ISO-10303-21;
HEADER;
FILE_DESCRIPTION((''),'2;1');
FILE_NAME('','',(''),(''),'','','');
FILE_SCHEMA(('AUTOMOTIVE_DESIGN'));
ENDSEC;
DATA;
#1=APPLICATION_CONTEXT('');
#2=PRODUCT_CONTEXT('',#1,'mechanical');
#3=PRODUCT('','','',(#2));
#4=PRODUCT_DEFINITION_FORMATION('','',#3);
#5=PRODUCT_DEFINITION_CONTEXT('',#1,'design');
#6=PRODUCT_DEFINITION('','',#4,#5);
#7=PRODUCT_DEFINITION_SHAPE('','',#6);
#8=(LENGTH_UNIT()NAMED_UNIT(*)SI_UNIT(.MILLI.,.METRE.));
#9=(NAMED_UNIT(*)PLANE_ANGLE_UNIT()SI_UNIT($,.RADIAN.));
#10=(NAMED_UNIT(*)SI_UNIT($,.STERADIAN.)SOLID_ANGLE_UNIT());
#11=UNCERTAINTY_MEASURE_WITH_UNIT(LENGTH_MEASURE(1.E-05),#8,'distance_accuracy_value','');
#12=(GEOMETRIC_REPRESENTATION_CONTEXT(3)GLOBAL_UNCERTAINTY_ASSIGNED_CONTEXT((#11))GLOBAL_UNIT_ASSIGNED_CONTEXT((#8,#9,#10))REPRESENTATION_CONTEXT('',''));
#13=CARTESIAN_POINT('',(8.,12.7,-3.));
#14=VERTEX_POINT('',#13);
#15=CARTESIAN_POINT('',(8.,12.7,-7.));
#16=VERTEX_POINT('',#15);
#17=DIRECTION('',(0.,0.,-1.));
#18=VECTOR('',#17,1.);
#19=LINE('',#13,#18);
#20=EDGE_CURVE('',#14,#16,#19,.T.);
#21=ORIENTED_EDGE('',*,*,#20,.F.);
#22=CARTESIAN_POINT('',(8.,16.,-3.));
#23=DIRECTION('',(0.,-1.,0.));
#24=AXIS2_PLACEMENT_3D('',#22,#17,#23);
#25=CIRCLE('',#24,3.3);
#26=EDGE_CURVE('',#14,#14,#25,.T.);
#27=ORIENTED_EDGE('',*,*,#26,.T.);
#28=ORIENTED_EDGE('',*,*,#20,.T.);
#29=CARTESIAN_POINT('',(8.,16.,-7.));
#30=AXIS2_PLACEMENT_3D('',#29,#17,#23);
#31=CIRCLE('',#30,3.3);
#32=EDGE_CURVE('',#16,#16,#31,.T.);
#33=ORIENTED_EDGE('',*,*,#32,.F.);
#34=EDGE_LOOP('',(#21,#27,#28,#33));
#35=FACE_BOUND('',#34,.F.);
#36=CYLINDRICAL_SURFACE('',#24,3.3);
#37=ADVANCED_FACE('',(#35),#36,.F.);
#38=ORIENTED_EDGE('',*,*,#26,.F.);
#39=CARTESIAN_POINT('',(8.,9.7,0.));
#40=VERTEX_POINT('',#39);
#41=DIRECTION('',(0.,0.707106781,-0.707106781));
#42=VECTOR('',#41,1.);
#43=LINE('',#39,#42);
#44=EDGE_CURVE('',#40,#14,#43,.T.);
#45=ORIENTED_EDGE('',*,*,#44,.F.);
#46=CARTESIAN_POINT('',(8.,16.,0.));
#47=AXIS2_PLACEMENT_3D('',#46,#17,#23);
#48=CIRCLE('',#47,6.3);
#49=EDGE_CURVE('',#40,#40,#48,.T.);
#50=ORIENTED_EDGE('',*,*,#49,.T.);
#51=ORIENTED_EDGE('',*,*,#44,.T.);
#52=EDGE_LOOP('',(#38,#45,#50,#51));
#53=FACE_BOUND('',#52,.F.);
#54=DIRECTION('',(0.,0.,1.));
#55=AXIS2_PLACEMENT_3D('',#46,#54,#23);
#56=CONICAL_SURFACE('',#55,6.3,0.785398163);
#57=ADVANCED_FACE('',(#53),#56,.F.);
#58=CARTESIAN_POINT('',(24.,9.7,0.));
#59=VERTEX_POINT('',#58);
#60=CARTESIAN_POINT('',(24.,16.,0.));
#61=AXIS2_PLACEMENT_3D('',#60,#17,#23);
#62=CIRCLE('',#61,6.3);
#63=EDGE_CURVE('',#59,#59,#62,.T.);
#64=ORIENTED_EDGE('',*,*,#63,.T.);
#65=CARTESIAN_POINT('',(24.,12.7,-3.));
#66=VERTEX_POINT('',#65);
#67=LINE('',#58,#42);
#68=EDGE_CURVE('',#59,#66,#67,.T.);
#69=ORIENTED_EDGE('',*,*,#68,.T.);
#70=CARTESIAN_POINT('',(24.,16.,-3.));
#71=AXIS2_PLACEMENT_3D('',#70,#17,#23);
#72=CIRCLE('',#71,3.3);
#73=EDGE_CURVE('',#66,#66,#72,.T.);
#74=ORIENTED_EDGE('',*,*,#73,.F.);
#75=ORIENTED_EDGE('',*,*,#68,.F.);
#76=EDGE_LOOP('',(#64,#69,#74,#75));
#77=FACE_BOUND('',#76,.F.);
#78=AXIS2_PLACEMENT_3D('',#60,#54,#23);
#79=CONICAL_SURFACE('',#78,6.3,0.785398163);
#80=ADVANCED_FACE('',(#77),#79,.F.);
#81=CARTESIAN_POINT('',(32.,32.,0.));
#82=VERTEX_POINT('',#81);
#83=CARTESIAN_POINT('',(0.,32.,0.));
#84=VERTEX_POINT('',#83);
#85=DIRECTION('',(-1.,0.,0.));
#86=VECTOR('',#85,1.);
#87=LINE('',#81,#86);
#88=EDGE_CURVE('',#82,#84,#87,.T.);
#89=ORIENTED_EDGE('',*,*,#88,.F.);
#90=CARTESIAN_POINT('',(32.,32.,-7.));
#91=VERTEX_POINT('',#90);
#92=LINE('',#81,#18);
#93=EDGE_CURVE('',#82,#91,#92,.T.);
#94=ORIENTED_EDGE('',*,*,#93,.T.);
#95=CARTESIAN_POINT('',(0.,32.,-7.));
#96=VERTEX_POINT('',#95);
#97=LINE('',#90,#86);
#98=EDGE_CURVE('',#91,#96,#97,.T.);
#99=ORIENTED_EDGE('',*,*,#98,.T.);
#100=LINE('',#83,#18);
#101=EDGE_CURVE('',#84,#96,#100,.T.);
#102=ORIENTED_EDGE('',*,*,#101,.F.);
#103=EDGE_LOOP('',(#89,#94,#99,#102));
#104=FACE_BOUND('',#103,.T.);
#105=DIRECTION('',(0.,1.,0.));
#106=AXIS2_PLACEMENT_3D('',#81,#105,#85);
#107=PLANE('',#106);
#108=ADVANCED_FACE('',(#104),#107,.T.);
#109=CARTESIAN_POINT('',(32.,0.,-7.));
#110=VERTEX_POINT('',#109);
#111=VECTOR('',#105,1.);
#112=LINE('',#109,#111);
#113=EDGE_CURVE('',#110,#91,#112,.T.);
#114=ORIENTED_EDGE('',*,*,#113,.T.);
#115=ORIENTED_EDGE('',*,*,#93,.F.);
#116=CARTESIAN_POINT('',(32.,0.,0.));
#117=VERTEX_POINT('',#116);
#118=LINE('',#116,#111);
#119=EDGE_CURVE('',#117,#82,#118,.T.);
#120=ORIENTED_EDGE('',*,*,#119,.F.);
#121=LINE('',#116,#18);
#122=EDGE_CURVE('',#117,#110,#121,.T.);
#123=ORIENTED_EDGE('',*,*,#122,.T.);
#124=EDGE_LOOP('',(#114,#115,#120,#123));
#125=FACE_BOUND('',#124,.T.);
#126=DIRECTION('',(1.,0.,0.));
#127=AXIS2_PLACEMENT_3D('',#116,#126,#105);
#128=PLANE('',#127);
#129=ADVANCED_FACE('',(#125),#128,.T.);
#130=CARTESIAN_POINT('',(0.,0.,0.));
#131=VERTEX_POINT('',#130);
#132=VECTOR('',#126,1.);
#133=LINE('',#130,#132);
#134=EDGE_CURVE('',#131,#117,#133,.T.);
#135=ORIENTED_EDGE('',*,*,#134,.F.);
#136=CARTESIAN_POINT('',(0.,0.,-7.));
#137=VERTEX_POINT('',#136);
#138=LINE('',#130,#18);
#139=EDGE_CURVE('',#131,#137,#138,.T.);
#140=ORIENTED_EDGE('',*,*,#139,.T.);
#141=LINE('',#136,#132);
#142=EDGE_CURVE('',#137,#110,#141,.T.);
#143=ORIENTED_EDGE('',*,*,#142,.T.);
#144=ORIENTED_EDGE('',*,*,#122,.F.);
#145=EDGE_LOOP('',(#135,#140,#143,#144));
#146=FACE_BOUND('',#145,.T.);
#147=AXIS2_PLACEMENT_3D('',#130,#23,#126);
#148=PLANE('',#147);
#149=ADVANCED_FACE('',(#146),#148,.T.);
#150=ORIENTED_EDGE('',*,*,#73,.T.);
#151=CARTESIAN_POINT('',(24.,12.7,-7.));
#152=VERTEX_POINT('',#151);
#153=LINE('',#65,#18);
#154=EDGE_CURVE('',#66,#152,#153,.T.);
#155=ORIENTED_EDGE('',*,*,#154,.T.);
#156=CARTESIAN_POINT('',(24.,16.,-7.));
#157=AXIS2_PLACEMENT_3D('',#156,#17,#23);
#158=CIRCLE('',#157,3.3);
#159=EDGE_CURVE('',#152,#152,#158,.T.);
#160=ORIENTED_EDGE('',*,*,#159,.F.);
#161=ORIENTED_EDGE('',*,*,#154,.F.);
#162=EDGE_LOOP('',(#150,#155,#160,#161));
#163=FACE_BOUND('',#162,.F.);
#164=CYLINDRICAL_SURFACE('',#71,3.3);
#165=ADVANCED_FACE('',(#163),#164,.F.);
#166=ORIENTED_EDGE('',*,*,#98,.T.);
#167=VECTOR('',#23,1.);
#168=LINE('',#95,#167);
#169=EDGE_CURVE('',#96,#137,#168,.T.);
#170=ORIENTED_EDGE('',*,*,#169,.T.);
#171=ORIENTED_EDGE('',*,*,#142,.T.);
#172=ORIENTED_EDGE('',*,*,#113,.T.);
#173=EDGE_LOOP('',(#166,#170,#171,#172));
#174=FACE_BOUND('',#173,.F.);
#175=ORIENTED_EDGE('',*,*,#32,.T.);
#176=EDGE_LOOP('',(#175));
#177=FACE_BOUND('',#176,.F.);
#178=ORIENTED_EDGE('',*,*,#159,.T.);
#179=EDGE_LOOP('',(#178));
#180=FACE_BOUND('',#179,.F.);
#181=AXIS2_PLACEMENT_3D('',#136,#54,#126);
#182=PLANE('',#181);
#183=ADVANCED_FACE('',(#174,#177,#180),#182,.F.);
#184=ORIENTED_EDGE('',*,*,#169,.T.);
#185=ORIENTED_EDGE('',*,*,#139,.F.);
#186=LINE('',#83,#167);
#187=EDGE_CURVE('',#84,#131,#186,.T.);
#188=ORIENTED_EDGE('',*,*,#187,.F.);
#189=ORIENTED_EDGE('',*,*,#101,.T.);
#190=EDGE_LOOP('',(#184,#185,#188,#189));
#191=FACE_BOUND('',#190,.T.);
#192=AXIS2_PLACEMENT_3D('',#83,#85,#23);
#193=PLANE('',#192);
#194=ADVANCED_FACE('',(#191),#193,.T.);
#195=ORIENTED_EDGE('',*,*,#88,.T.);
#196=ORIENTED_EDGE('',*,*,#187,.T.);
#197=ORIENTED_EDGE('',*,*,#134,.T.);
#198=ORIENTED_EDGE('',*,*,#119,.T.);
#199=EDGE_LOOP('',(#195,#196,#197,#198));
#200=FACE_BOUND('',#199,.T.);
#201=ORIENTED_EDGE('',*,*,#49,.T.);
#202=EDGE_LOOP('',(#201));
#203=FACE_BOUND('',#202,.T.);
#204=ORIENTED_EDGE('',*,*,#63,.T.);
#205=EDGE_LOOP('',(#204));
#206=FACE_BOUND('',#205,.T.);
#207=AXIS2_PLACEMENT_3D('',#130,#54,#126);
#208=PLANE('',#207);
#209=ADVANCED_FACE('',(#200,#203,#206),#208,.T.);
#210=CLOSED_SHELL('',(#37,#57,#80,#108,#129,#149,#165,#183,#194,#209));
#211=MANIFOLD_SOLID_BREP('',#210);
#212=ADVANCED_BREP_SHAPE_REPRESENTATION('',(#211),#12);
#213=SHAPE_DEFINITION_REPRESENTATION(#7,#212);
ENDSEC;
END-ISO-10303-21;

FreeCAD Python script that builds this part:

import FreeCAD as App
import Part
import Sketcher
from FreeCAD import Vector

doc = App.newDocument("Part")
body = doc.addObject("PartDesign::Body", "Body")

# Sketch on XY plane
sketch1 = body.newObject("Sketcher::SketchObject", "Sketch")
sketch1.AttachmentSupport = (doc.getObject("XY_Plane"), [""])
sketch1.MapMode = "FlatFace"
sketch1.addGeometry(Part.LineSegment(Vector(0, 32, 0), Vector(0, 0, 0)), False)
sketch1.addGeometry(Part.LineSegment(Vector(0, 0, 0), Vector(32, 0, 0)), False)
sketch1.addGeometry(Part.LineSegment(Vector(32, 0, 0), Vector(32, 32, 0)), False)
sketch1.addGeometry(Part.LineSegment(Vector(32, 32, 0), Vector(0, 32, 0)), False)
sketch1.addConstraint(Sketcher.Constraint("Coincident", 0, 2, 1, 1))
sketch1.addConstraint(Sketcher.Constraint("Coincident", 1, 2, 2, 1))
sketch1.addConstraint(Sketcher.Constraint("Coincident", 2, 2, 3, 1))
sketch1.addConstraint(Sketcher.Constraint("Coincident", 3, 2, 0, 1))
sketch1.addConstraint(Sketcher.Constraint("Vertical", 0))
sketch1.addConstraint(Sketcher.Constraint("Horizontal", 1))
sketch1.addConstraint(Sketcher.Constraint("Vertical", 2))
sketch1.addConstraint(Sketcher.Constraint("Horizontal", 3))
sketch1.addConstraint(Sketcher.Constraint("Coincident", 0, 2, -1, 1))
sketch1.addConstraint(Sketcher.Constraint("Equal", 3, 0))
sketch1.addConstraint(Sketcher.Constraint("DistanceX", 1, 1, 1, 2, 32.0))
pad1 = body.newObject("PartDesign::Pad", "Pad")
pad1.Profile = sketch1
pad1.Length = 7
pad1.Reversed = True

# Sketch on XY plane
sketch2 = body.newObject("Sketcher::SketchObject", "Sketch001")
sketch2.AttachmentSupport = (doc.getObject("XY_Plane"), [""])
sketch2.MapMode = "FlatFace"
sketch2.addGeometry(Part.Circle(Vector(8, 16, 0), Vector(0, 0, 1), 3.3), False)
sketch2.addGeometry(Part.Circle(Vector(24, 16, 0), Vector(0, 0, 1), 3.3), False)
sketch2.addConstraint(Sketcher.Constraint("Equal", 0, 1))
sketch2.addConstraint(Sketcher.Constraint("Horizontal", 0, 3, 1, 3))
sketch2.addConstraint(Sketcher.Constraint("Diameter", 0, 6.6))
sketch2.addConstraint(Sketcher.Constraint("DistanceX", -1, 1, 0, 3, 8.0))
sketch2.addConstraint(Sketcher.Constraint("DistanceY", -1, 1, 0, 3, 16.0))
sketch2.addConstraint(Sketcher.Constraint("DistanceX", -1, 1, 1, 3, 24.0))
doc.recompute()
hole = body.newObject("PartDesign::Hole", "Hole")
hole.Profile = sketch2
hole.ThreadType = "None"
hole.Diameter = 6.6
hole.DepthType = "ThroughAll"
hole.HoleCutType = "Countersink"
hole.HoleCutDiameter = 12.6
hole.HoleCutCountersinkAngle = 90

doc.recompute()
